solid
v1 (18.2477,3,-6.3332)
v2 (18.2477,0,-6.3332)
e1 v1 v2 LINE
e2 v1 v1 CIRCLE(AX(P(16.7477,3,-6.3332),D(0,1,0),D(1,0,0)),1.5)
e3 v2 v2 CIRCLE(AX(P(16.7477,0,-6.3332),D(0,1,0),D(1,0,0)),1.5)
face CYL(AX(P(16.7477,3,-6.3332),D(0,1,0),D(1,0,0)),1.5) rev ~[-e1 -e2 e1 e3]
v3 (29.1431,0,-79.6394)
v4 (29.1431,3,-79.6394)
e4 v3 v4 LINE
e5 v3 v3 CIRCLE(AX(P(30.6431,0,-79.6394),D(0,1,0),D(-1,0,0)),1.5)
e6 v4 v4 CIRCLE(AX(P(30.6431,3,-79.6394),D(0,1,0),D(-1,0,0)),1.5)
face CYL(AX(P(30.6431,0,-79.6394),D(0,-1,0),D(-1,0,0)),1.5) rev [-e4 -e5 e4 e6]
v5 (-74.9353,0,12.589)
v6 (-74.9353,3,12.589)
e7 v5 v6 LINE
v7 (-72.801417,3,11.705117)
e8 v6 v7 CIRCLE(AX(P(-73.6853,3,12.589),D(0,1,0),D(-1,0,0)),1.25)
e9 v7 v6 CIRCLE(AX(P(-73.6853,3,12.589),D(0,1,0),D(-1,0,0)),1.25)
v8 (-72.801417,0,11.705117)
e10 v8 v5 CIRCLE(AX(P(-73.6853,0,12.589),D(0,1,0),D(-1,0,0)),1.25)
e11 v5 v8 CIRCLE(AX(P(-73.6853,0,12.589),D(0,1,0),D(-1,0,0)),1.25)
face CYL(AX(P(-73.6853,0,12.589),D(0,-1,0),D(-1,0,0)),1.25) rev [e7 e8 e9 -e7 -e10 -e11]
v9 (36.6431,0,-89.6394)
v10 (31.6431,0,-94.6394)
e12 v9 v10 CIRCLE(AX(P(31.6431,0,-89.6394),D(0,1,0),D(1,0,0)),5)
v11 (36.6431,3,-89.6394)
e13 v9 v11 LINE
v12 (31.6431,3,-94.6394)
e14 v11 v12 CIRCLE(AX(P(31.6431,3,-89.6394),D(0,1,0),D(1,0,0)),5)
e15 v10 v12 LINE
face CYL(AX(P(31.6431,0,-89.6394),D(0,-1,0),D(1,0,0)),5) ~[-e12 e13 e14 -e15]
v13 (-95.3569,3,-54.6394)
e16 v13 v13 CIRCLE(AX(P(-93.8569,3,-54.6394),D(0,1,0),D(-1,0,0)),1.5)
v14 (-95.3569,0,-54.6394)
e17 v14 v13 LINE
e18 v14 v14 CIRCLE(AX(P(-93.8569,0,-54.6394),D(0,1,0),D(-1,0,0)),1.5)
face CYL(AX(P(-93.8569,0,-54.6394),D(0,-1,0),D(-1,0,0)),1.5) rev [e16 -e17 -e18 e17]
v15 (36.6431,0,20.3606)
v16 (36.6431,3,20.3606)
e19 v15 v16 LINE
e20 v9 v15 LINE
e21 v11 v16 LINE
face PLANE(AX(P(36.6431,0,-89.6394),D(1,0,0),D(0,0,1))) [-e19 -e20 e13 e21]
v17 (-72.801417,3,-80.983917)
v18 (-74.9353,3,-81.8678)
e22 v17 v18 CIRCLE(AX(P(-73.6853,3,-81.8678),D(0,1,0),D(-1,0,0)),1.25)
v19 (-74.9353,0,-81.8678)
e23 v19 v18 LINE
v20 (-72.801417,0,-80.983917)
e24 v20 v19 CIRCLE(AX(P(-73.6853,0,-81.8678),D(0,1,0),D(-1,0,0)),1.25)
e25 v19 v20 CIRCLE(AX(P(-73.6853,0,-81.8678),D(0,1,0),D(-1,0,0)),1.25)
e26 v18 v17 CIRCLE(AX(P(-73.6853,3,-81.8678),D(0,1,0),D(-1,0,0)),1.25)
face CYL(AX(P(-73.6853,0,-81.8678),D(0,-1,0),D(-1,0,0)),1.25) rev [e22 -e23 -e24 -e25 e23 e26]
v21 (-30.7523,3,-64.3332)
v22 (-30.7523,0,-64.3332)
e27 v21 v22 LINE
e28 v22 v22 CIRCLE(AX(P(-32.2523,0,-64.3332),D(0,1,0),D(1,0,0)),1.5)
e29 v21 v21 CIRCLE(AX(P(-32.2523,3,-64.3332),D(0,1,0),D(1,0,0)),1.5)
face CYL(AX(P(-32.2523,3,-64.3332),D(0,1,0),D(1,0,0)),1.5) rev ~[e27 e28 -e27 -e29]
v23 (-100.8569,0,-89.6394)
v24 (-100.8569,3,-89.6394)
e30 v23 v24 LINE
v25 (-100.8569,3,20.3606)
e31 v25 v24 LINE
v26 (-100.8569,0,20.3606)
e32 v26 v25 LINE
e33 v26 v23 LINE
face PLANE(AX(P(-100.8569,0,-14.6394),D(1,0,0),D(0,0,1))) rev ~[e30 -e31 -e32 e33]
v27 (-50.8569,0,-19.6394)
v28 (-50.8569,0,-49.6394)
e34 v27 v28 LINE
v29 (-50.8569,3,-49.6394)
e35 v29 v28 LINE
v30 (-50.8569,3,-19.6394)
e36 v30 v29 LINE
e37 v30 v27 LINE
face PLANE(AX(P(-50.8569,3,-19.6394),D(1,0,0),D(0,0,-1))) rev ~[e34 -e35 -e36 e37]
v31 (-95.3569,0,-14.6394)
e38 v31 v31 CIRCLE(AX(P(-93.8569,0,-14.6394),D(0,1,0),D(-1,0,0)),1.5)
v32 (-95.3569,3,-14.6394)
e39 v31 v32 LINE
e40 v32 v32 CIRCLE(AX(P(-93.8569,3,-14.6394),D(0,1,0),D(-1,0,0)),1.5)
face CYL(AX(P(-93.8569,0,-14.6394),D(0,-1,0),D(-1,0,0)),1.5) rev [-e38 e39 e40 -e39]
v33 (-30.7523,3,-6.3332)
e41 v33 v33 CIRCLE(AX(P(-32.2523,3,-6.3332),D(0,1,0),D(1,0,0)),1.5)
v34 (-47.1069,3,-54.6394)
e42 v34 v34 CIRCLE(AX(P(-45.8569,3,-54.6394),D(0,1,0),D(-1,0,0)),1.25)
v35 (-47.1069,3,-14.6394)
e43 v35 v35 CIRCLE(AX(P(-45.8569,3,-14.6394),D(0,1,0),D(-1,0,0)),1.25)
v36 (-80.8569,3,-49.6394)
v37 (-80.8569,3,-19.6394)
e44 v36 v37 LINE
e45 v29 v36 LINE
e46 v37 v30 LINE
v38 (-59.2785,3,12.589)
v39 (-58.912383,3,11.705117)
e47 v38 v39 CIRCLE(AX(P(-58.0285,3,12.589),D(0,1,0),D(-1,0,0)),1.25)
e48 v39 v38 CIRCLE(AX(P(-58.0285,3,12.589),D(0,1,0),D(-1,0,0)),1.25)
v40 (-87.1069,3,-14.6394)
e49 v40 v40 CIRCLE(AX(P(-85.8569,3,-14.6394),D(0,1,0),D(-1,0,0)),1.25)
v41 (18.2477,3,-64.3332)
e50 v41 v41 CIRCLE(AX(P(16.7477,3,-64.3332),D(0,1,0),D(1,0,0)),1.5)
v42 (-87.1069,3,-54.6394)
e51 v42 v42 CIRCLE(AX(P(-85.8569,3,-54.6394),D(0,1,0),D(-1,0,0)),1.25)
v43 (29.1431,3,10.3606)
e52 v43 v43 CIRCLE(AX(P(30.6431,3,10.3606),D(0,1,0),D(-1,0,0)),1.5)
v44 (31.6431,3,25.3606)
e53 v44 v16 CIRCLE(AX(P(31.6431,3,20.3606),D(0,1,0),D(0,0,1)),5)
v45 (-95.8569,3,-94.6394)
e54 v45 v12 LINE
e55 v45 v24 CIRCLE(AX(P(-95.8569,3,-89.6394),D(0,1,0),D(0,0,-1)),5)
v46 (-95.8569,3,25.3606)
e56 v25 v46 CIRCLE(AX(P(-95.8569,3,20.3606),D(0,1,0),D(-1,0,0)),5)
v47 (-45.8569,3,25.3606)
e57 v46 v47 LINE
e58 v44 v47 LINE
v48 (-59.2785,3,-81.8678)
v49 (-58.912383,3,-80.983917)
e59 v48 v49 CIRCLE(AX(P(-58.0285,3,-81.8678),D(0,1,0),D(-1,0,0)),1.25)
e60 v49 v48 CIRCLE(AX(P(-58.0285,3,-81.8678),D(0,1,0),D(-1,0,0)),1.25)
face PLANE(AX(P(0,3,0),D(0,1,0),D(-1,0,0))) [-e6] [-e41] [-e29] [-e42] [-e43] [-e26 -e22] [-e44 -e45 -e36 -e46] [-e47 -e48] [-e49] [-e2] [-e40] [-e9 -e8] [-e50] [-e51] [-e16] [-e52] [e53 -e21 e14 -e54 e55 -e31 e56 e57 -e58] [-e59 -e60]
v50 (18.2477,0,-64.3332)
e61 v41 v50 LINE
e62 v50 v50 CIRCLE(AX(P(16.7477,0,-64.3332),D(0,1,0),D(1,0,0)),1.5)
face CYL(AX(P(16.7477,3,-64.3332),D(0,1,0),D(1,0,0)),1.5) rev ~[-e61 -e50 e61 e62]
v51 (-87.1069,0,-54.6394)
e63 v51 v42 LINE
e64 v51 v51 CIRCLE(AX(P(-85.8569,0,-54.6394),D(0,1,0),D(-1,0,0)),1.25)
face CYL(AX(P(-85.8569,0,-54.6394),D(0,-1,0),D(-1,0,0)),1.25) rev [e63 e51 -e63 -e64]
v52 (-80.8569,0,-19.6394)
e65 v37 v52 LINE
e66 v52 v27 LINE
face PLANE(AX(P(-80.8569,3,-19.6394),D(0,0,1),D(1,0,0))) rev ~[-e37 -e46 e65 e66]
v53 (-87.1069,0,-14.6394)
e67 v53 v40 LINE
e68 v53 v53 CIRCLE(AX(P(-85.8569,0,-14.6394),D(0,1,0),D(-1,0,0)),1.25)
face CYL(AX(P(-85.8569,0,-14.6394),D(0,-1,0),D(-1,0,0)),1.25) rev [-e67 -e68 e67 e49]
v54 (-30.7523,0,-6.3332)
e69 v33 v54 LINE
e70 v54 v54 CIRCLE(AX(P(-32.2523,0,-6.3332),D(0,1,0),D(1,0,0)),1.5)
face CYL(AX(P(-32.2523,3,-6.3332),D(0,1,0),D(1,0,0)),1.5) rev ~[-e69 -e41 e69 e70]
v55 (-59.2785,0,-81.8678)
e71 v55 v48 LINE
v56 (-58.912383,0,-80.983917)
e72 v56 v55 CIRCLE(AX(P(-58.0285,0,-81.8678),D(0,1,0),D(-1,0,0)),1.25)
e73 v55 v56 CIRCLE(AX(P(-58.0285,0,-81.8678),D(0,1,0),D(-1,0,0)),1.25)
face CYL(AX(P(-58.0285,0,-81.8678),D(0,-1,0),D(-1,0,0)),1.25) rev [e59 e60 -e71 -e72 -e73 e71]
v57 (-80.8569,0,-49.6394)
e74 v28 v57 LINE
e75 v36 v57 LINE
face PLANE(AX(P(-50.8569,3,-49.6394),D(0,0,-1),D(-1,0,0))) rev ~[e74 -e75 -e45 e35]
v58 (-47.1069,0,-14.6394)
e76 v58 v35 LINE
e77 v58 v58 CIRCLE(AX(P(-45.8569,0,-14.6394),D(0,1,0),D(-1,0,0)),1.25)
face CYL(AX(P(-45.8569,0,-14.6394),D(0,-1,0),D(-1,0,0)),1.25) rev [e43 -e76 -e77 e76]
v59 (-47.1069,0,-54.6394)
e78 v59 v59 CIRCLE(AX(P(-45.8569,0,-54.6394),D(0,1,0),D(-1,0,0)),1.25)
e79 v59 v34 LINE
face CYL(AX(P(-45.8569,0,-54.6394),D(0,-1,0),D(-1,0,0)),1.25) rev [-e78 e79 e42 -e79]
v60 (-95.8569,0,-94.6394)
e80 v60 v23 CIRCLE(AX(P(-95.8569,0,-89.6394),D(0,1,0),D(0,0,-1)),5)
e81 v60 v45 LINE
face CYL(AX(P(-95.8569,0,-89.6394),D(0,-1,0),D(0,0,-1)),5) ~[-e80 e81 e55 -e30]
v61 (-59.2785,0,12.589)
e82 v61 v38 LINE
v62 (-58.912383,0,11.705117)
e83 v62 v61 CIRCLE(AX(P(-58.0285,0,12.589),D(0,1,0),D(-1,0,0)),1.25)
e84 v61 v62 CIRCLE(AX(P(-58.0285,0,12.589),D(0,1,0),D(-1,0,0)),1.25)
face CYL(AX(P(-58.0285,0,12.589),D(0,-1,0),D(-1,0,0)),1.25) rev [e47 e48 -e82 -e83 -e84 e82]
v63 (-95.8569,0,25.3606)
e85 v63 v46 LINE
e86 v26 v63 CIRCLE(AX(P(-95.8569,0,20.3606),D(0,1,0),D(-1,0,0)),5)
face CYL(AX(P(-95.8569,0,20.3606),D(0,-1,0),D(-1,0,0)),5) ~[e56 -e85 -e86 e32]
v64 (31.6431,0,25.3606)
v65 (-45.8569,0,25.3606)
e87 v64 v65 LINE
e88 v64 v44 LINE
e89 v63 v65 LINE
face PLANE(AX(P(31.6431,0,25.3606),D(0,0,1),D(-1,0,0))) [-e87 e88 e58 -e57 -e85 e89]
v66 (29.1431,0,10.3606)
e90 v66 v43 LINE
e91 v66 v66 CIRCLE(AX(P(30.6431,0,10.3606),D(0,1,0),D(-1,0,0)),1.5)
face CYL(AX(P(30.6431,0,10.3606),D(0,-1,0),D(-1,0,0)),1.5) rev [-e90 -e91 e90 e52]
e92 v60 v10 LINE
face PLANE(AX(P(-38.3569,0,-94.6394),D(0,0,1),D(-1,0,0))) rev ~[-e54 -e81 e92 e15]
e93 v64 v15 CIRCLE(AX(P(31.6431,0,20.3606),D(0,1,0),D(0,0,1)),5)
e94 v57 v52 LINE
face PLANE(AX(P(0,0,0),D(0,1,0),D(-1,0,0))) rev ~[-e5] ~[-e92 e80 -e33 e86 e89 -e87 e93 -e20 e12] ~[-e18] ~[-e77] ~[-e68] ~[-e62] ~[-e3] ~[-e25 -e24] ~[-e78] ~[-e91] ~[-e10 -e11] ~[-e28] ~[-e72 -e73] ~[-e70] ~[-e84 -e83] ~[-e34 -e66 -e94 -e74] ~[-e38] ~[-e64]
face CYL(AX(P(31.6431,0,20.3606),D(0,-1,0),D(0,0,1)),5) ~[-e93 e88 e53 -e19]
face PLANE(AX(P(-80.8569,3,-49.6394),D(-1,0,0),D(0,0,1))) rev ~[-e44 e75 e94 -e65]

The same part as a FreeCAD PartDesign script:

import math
import FreeCAD as App
import Part
import Sketcher
from FreeCAD import Vector


def add_polygon(sketch, points):
    """Adds a closed chain of lines whose ends are joined by coincident constraints."""
    first, n = sketch.GeometryCount, len(points)
    for a, b in zip(points, points[1:] + points[:1]):
        sketch.addGeometry(Part.LineSegment(App.Vector(*a, 0), App.Vector(*b, 0)), False)
    for i in range(n):
        sketch.addConstraint(Sketcher.Constraint("Coincident", first + i, 2, first + (i + 1) % n, 1))

doc = App.newDocument("Part")
params = doc.addObject("Spreadsheet::Sheet", "Params")
for row, (alias, value) in enumerate([
    ("sketch1_radius", "5 mm"),
    ("sketch1_diameter", "2.5 mm"),
    ("sketch1_diameter2", "3 mm"),
    ("sketch1_width", "50 mm"),
    ("sketch1_height", "110 mm"),
    ("pad1_length", "3 mm"),
    ("sketch2_diameter", "3 mm"),
    ("pocket1_length", "3 mm"),
    ("sketch3_width", "30 mm"),
    ("pocket2_length", "10 mm"),
], start=1):
    params.set(f"A{row}", alias)
    params.set(f"B{row}", "=" + value)
    params.setAlias(f"B{row}", alias)

body = doc.addObject("PartDesign::Body", "Body")

# Sketch on XZ plane
sketch1 = body.newObject("Sketcher::SketchObject", "Sketch")
sketch1.AttachmentSupport = (doc.getObject("XZ_Plane"), [""])
sketch1.MapMode = "FlatFace"
sketch1.addGeometry(Part.ArcOfCircle(Part.Circle(Vector(31.6431, 20.3606, 0), Vector(0, 0, 1), 5), math.radians(0), math.radians(90)), False)
sketch1.addGeometry(Part.LineSegment(Vector(36.6431, 20.3606, 0), Vector(36.6431, -89.6394, 0)), False)
sketch1.addGeometry(Part.ArcOfCircle(Part.Circle(Vector(31.6431, -89.6394, 0), Vector(0, 0, 1), 5), math.radians(-90), math.radians(0)), False)
sketch1.addGeometry(Part.LineSegment(Vector(31.6431, -94.6394, 0), Vector(-95.8569, -94.6394, 0)), False)
sketch1.addGeometry(Part.ArcOfCircle(Part.Circle(Vector(-95.8569, -89.6394, 0), Vector(0, 0, 1), 5), math.radians(180), math.radians(270)), False)
sketch1.addGeometry(Part.LineSegment(Vector(-100.8569, -89.6394, 0), Vector(-100.8569, 20.3606, 0)), False)
sketch1.addGeometry(Part.ArcOfCircle(Part.Circle(Vector(-95.8569, 20.3606, 0), Vector(0, 0, 1), 5), math.radians(90), math.radians(180)), False)
sketch1.addGeometry(Part.LineSegment(Vector(-95.8569, 25.3606, 0), Vector(-45.8569, 25.3606, 0)), False)
sketch1.addGeometry(Part.LineSegment(Vector(-45.8569, 25.3606, 0), Vector(31.6431, 25.3606, 0)), False)
sketch1.addGeometry(Part.Circle(Vector(-58.0285, 12.589, 0), Vector(0, 0, 1), 1.25), False)
sketch1.addGeometry(Part.Circle(Vector(30.6431, -79.6394, 0), Vector(0, 0, 1), 1.5), False)
sketch1.addGeometry(Part.Circle(Vector(-45.8569, -54.6394, 0), Vector(0, 0, 1), 1.25), False)
sketch1.addGeometry(Part.Circle(Vector(-85.8569, -54.6394, 0), Vector(0, 0, 1), 1.25), False)
sketch1.addGeometry(Part.Circle(Vector(-93.8569, -54.6394, 0), Vector(0, 0, 1), 1.5), False)
sketch1.addGeometry(Part.Circle(Vector(30.6431, 10.3606, 0), Vector(0, 0, 1), 1.5), False)
sketch1.addGeometry(Part.Circle(Vector(-45.8569, -14.6394, 0), Vector(0, 0, 1), 1.25), False)
sketch1.addGeometry(Part.Circle(Vector(-85.8569, -14.6394, 0), Vector(0, 0, 1), 1.25), False)
sketch1.addGeometry(Part.Circle(Vector(-93.8569, -14.6394, 0), Vector(0, 0, 1), 1.5), False)
sketch1.addGeometry(Part.Circle(Vector(-58.0285, -81.8678, 0), Vector(0, 0, 1), 1.25), False)
sketch1.addGeometry(Part.Circle(Vector(-73.6853, -81.8678, 0), Vector(0, 0, 1), 1.25), False)
sketch1.addGeometry(Part.Circle(Vector(-73.6853, 12.589, 0), Vector(0, 0, 1), 1.25), False)
sketch1.addConstraint(Sketcher.Constraint("Tangent", 0, 1, 1, 1))
sketch1.addConstraint(Sketcher.Constraint("Tangent", 1, 2, 2, 2))
sketch1.addConstraint(Sketcher.Constraint("Tangent", 2, 1, 3, 1))
sketch1.addConstraint(Sketcher.Constraint("Tangent", 3, 2, 4, 2))
sketch1.addConstraint(Sketcher.Constraint("Tangent", 4, 1, 5, 1))
sketch1.addConstraint(Sketcher.Constraint("Tangent", 5, 2, 6, 2))
sketch1.addConstraint(Sketcher.Constraint("Tangent", 6, 1, 7, 1))
sketch1.addConstraint(Sketcher.Constraint("Coincident", 7, 2, 8, 1))
sketch1.addConstraint(Sketcher.Constraint("Tangent", 8, 2, 0, 2))
sketch1.addConstraint(Sketcher.Constraint("Vertical", 1))
sketch1.addConstraint(Sketcher.Constraint("Horizontal", 3))
sketch1.addConstraint(Sketcher.Constraint("Vertical", 5))
sketch1.addConstraint(Sketcher.Constraint("Horizontal", 7))
sketch1.addConstraint(Sketcher.Constraint("Horizontal", 8))
sketch1.addConstraint(Sketcher.Constraint("Equal", 0, 2))
sketch1.addConstraint(Sketcher.Constraint("Equal", 2, 4))
sketch1.addConstraint(Sketcher.Constraint("Equal", 4, 6))
sketch1.addConstraint(Sketcher.Constraint("Equal", 9, 11))
sketch1.addConstraint(Sketcher.Constraint("Equal", 11, 12))
sketch1.addConstraint(Sketcher.Constraint("Equal", 10, 13))
sketch1.addConstraint(Sketcher.Constraint("Equal", 13, 14))
sketch1.addConstraint(Sketcher.Constraint("Equal", 12, 15))
sketch1.addConstraint(Sketcher.Constraint("Equal", 15, 16))
sketch1.addConstraint(Sketcher.Constraint("Equal", 14, 17))
sketch1.addConstraint(Sketcher.Constraint("Equal", 16, 18))
sketch1.addConstraint(Sketcher.Constraint("Equal", 18, 19))
sketch1.addConstraint(Sketcher.Constraint("Equal", 19, 20))
sketch1.addConstraint(Sketcher.Constraint("Horizontal", 11, 3, 12, 3))
sketch1.addConstraint(Sketcher.Constraint("Horizontal", 12, 3, 13, 3))
sketch1.addConstraint(Sketcher.Constraint("Horizontal", 15, 3, 16, 3))
sketch1.addConstraint(Sketcher.Constraint("Horizontal", 16, 3, 17, 3))
sketch1.addConstraint(Sketcher.Constraint("Horizontal", 18, 3, 19, 3))
sketch1.addConstraint(Sketcher.Constraint("Horizontal", 9, 3, 20, 3))
sketch1.addConstraint(Sketcher.Constraint("Vertical", 10, 3, 14, 3))
sketch1.addConstraint(Sketcher.Constraint("Vertical", 11, 3, 15, 3))
sketch1.addConstraint(Sketcher.Constraint("Vertical", 12, 3, 16, 3))
sketch1.addConstraint(Sketcher.Constraint("Vertical", 13, 3, 17, 3))
sketch1.addConstraint(Sketcher.Constraint("Vertical", 9, 3, 18, 3))
sketch1.addConstraint(Sketcher.Constraint("Vertical", 19, 3, 20, 3))
sketch1.addConstraint(Sketcher.Constraint("Vertical", 15, 3, 7, 2))
sketch1.addConstraint(Sketcher.Constraint("Radius", 0, 5.0))
sketch1.addConstraint(Sketcher.Constraint("Diameter", 9, 2.5))
sketch1.addConstraint(Sketcher.Constraint("Diameter", 10, 3.0))
sketch1.addConstraint(Sketcher.Constraint("DistanceY", 2, 1, 10, 3, 15.0))
sketch1.addConstraint(Sketcher.Constraint("DistanceX", 4, 1, 12, 3, 15.0))
sketch1.addConstraint(Sketcher.Constraint("DistanceY", 14, 3, 8, 2, 15.0))
sketch1.addConstraint(Sketcher.Constraint("DistanceX", 7, 1, 7, 2, 50.0))
sketch1.addConstraint(Sketcher.Constraint("DistanceY", 1, 2, 1, 1, 110.0))
sketch1.addConstraint(Sketcher.Constraint("DistanceX", 3, 2, 3, 1, 127.5))
sketch1.addConstraint(Sketcher.Constraint("DistanceX", 10, 3, 2, 3, 1.0))
sketch1.addConstraint(Sketcher.Constraint("DistanceY", 4, 3, 11, 3, 35.0))
sketch1.addConstraint(Sketcher.Constraint("DistanceX", 13, 3, 12, 3, 8.0))
sketch1.addConstraint(Sketcher.Constraint("DistanceY", 11, 3, 15, 3, 40.0))
sketch1.addConstraint(Sketcher.Constraint("DistanceX", -1, 1, 0, 3, 31.643))
sketch1.addConstraint(Sketcher.Constraint("DistanceY", -1, 1, 9, 3, 12.589))
sketch1.addConstraint(Sketcher.Constraint("DistanceY", -1, 1, 0, 3, 20.3606))
sketch1.addConstraint(Sketcher.Constraint("DistanceX", 9, 3, -1, 1, 58.0285))
sketch1.addConstraint(Sketcher.Constraint("DistanceY", 18, 3, -1, 1, 81.8678))
sketch1.addConstraint(Sketcher.Constraint("DistanceX", 19, 3, -1, 1, 73.6853))
sketch1.setExpression("Constraints[40]", "Params.sketch1_radius")
sketch1.setExpression("Constraints[41]", "Params.sketch1_diameter")
sketch1.setExpression("Constraints[42]", "Params.sketch1_diameter2")
sketch1.setExpression("Constraints[46]", "Params.sketch1_width")
sketch1.setExpression("Constraints[47]", "Params.sketch1_height")
pad1 = body.newObject("PartDesign::Pad", "Pad")
pad1.Profile = sketch1
pad1.setExpression("Length", "Params.pad1_length")
pad1.Reversed = True

# Sketch on XZ plane
sketch2 = body.newObject("Sketcher::SketchObject", "Sketch001")
sketch2.AttachmentSupport = (doc.getObject("XZ_Plane"), [""])
sketch2.MapMode = "FlatFace"
sketch2.AttachmentOffset = App.Placement(Vector(0, 0, -3), App.Rotation())
sketch2.addGeometry(Part.Circle(Vector(16.7477, -6.3332, 0), Vector(0, 0, 1), 1.5), False)
sketch2.addGeometry(Part.Circle(Vector(-32.2523, -6.3332, 0), Vector(0, 0, 1), 1.5), False)
sketch2.addGeometry(Part.Circle(Vector(-32.2523, -64.3332, 0), Vector(0, 0, 1), 1.5), False)
sketch2.addGeometry(Part.Circle(Vector(16.7477, -64.3332, 0), Vector(0, 0, 1), 1.5), False)
sketch2.addConstraint(Sketcher.Constraint("Equal", 0, 1))
sketch2.addConstraint(Sketcher.Constraint("Equal", 1, 2))
sketch2.addConstraint(Sketcher.Constraint("Equal", 2, 3))
sketch2.addConstraint(Sketcher.Constraint("Horizontal", 0, 3, 1, 3))
sketch2.addConstraint(Sketcher.Constraint("Horizontal", 2, 3, 3, 3))
sketch2.addConstraint(Sketcher.Constraint("Vertical", 1, 3, 2, 3))
sketch2.addConstraint(Sketcher.Constraint("Vertical", 0, 3, 3, 3))
sketch2.addConstraint(Sketcher.Constraint("Diameter", 0, 3.0))
sketch2.addConstraint(Sketcher.Constraint("DistanceX", 1, 3, 0, 3, 49.0))
sketch2.addConstraint(Sketcher.Constraint("DistanceY", 2, 3, 1, 3, 58.0))
sketch2.addConstraint(Sketcher.Constraint("DistanceX", -1, 1, 0, 3, 16.7477))
sketch2.addConstraint(Sketcher.Constraint("DistanceY", 0, 3, -1, 1, 6.3332))
sketch2.setExpression("Constraints[7]", "Params.sketch2_diameter")
pocket1 = body.newObject("PartDesign::Pocket", "Pocket")
pocket1.Profile = sketch2
pocket1.setExpression("Length", "Params.pocket1_length")
pocket1.Reversed = True

# Sketch on XZ plane
sketch3 = body.newObject("Sketcher::SketchObject", "Sketch002")
sketch3.AttachmentSupport = (doc.getObject("XZ_Plane"), [""])
sketch3.MapMode = "FlatFace"
sketch3.AttachmentOffset = App.Placement(Vector(0, 0, -3), App.Rotation())
add_polygon(sketch3, [(-80.8569, -49.6394), (-80.8569, -19.6394), (-50.8569, -19.6394), (-50.8569, -49.6394)])  # lines 0-3
sketch3.addConstraint(Sketcher.Constraint("Vertical", 0))
sketch3.addConstraint(Sketcher.Constraint("Horizontal", 1))
sketch3.addConstraint(Sketcher.Constraint("Vertical", 2))
sketch3.addConstraint(Sketcher.Constraint("Horizontal", 3))
sketch3.addConstraint(Sketcher.Constraint("Equal", 3, 0))
sketch3.addConstraint(Sketcher.Constraint("DistanceX", 1, 1, 1, 2, 30.0))
sketch3.addConstraint(Sketcher.Constraint("DistanceX", 0, 2, -1, 1, 80.857))
sketch3.addConstraint(Sketcher.Constraint("DistanceY", 0, 2, -1, 1, 19.6394))
sketch3.setExpression("Constraints[9]", "Params.sketch3_width")
pocket2 = body.newObject("PartDesign::Pocket", "Pocket001")
pocket2.Profile = sketch3
pocket2.setExpression("Length", "Params.pocket2_length")
pocket2.Reversed = True

doc.recompute()
